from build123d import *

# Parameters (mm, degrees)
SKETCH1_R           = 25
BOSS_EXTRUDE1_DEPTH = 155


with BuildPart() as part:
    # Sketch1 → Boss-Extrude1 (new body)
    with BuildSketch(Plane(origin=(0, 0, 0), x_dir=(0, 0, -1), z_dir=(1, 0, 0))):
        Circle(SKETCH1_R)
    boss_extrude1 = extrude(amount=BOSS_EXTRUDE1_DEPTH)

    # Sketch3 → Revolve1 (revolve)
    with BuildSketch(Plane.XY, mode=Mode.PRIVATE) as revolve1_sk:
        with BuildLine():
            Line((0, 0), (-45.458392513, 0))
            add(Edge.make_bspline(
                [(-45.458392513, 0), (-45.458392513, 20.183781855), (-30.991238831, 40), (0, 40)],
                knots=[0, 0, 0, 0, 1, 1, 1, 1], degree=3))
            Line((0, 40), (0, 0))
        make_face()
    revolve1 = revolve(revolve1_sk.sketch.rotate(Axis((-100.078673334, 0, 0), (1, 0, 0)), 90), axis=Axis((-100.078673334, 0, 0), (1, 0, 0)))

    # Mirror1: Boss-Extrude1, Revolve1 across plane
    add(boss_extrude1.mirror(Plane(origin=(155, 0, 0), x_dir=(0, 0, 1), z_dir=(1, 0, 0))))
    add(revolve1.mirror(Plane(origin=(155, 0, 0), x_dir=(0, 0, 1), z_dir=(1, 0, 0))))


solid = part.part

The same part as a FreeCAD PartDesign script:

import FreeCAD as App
import Part
import Sketcher
from FreeCAD import Vector
Q = App.Units.Quantity

doc = App.newDocument("Part")
body = doc.addObject("PartDesign::Body", "Body")

# Sketch on YZ plane
sketch1 = body.newObject("Sketcher::SketchObject", "Sketch")
sketch1.AttachmentSupport = (doc.getObject("YZ_Plane"), [""])
sketch1.MapMode = "FlatFace"
sketch1.addGeometry(Part.Circle(Vector(0, 0, 0), Vector(0, 0, 1), 25), False)
sketch1.addConstraint([
    Sketcher.Constraint("Coincident", 0, 3, -1, 1),
    Sketcher.Constraint("Diameter", 0, Q("50 mm")),
])
pad1 = body.newObject("PartDesign::Pad", "Pad")
pad1.Profile = sketch1
pad1.Length = 155

# Sketch on XY plane
sketch2 = body.newObject("Sketcher::SketchObject", "Sketch001")
sketch2.AttachmentSupport = (doc.getObject("XY_Plane"), [""])
sketch2.MapMode = "FlatFace"
sketch2.addGeometry([
    Part.LineSegment(Vector(-45.458393, 0, 0), Vector(0, 0, 0)),
    Part.LineSegment(Vector(0, 0, 0), Vector(0, 40, 0)),
    Part.BSplineCurve([Vector(-45.458393, 0, 0), Vector(-45.458393, 20.183782, 0), Vector(-30.991239, 40, 0), Vector(0, 40, 0)], [4, 4], [0, 1], False, 3, [1, 1, 1, 1], False),
], False)
sketch2.addConstraint([
    Sketcher.Constraint("Block", 2),
    Sketcher.Constraint("Coincident", 0, 2, 1, 1),
    Sketcher.Constraint("Coincident", 1, 2, 2, 2),
    Sketcher.Constraint("Coincident", 2, 1, 0, 1),
    Sketcher.Constraint("Horizontal", 0),
    Sketcher.Constraint("Vertical", 1),
])
revolution = body.newObject("PartDesign::Revolution", "Revolution")
revolution.Profile = sketch2
revolution.ReferenceAxis = (sketch2, ["H_Axis"])
revolution.Angle = 360
doc.recompute()

datumplane = body.newObject("PartDesign::Plane", "DatumPlane")
datumplane.AttachmentSupport = (doc.getObject("YZ_Plane"), [""])
datumplane.MapMode = "FlatFace"
datumplane.AttachmentOffset = App.Placement(Vector(0, 0, 155), App.Rotation())
mirrored = body.newObject("PartDesign::Mirrored", "Mirrored")
mirrored.Originals = [pad1, revolution]
mirrored.MirrorPlane = (datumplane, [""])
body.Tip = mirrored

doc.recompute()
